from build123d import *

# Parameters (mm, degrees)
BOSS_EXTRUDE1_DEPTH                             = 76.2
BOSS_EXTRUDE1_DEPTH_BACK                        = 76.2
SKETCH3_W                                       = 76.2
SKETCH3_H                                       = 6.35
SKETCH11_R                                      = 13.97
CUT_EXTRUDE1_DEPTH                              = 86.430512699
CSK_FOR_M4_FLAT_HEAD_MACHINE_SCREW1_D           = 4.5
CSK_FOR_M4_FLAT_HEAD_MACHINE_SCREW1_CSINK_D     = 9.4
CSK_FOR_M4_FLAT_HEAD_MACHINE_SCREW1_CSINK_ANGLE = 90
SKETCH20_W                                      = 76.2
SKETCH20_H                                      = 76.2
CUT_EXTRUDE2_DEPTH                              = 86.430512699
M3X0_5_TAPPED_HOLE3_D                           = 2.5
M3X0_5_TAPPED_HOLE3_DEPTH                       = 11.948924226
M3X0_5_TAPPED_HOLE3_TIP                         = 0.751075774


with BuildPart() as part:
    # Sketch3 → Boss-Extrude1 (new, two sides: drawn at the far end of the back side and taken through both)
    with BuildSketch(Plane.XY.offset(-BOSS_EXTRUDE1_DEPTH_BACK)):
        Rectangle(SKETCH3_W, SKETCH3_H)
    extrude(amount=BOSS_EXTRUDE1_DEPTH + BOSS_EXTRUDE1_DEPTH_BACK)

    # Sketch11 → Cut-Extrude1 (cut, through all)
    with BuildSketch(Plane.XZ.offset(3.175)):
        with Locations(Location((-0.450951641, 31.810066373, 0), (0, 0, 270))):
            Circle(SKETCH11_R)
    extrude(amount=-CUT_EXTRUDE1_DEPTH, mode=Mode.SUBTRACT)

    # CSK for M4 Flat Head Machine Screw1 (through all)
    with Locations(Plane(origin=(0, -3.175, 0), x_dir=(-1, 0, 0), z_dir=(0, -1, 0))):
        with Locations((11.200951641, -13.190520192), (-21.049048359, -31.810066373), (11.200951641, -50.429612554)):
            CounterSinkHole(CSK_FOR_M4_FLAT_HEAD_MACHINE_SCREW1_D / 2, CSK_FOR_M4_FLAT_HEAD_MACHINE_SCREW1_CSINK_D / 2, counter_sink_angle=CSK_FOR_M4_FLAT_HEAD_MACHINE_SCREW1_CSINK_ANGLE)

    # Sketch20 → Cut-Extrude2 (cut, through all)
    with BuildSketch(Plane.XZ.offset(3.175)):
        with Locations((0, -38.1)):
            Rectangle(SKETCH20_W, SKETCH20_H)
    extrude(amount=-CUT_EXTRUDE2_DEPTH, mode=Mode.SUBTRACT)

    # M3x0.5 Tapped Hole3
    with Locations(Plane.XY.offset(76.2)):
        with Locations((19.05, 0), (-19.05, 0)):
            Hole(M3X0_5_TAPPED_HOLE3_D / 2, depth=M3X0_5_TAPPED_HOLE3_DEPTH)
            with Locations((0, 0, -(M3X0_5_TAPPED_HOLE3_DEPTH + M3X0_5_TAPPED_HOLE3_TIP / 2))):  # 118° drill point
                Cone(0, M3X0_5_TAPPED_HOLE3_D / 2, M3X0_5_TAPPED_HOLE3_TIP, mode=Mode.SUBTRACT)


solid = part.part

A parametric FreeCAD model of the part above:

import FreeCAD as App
import Part
import Sketcher
Q = App.Units.Quantity


def add_polygon(sketch, points):
    """Adds a closed chain of lines whose ends are joined by coincident constraints."""
    first, n = sketch.GeometryCount, len(points)
    for a, b in zip(points, points[1:] + points[:1]):
        sketch.addGeometry(Part.LineSegment(App.Vector(*a, 0), App.Vector(*b, 0)), False)
    for i in range(n):
        sketch.addConstraint(Sketcher.Constraint("Coincident", first + i, 2, first + (i + 1) % n, 1))

doc = App.newDocument("Part")
params = doc.addObject("Spreadsheet::Sheet", "Params")
for row, (alias, value) in enumerate([
    ("sketch1_width", "3 in"),
    ("sketch1_height", "0.25 in"),
    ("pad1_length", "3 in"),
    ("pad1_length2", "3 in"),
    ("sketch2_diameter", "1.1 in"),
    ("hole_diameter", "4.5 mm"),
    ("hole_csink_diameter", "9.4 mm"),
    ("sketch4_width", "3 in"),
    ("hole2_diameter", "2.5 mm"),
    ("hole2_depth", "11.948924 mm"),
], start=1):
    params.set(f"A{row}", alias)
    params.set(f"B{row}", "=" + value)
    params.setAlias(f"B{row}", alias)

body = doc.addObject("PartDesign::Body", "Body")

sketch1 = body.newObject("Sketcher::SketchObject", "Sketch")
sketch1.AttachmentSupport = (doc.getObject("XY_Plane"), [""])
sketch1.MapMode = "FlatFace"
add_polygon(sketch1, [(-38, 3), (-38, -3), (38, -3), (38, 3)])
sketch1.addConstraint([
    Sketcher.Constraint("Vertical", 0),
    Sketcher.Constraint("Horizontal", 1),
    Sketcher.Constraint("Vertical", 2),
    Sketcher.Constraint("Horizontal", 3),
    Sketcher.Constraint("Symmetric", 0, 2, 2, 2, -1, 1),
    Sketcher.Constraint("DistanceX", 1, 1, 1, 2, Q("3 in")),
    Sketcher.Constraint("DistanceY", 0, 2, 0, 1, Q("0.25 in")),
])
sketch1.setExpression("Constraints[9]", "Params.sketch1_width")
sketch1.setExpression("Constraints[10]", "Params.sketch1_height")
pad1 = body.newObject("PartDesign::Pad", "Pad")
pad1.Profile = sketch1
pad1.Type = "TwoLengths"
pad1.setExpression("Length", "Params.pad1_length")
pad1.setExpression("Length2", "Params.pad1_length2")

sketch2 = body.newObject("Sketcher::SketchObject", "Sketch001")
sketch2.AttachmentSupport = (doc.getObject("XZ_Plane"), [""])
sketch2.MapMode = "FlatFace"
sketch2.AttachmentOffset = App.Placement(App.Vector(0, 0, 0.125 * 25.4), App.Rotation())
sketch2.addGeometry(Part.Circle(App.Vector(0, 32, 0), App.Vector(0, 0, 1), 14), False)
sketch2.addConstraint([
    Sketcher.Constraint("Diameter", 0, Q("1.1 in")),
    Sketcher.Constraint("DistanceX", 0, 3, -1, 1, 0.450952),
    Sketcher.Constraint("DistanceY", -1, 1, 0, 3, 31.810066),
])
sketch2.setExpression("Constraints[0]", "Params.sketch2_diameter")
pocket1 = body.newObject("PartDesign::Pocket", "Pocket")
pocket1.Profile = sketch2
pocket1.Type = "ThroughAll"

sketch3 = body.newObject("Sketcher::SketchObject", "Sketch002")
sketch3.AttachmentSupport = (doc.getObject("XZ_Plane"), [""])
sketch3.MapMode = "FlatFace"
sketch3.AttachmentOffset = App.Placement(App.Vector(0, 0, 0.125 * 25.4), App.Rotation())
sketch3.addGeometry([
    Part.Circle(App.Vector(-11.2, 13.2, 0), App.Vector(0, 0, 1), 2.2),
    Part.Circle(App.Vector(21, 31.8, 0), App.Vector(0, 0, 1), 2.2),
    Part.Circle(App.Vector(-11.2, 50.4, 0), App.Vector(0, 0, 1), 2.2),
], False)
sketch3.addConstraint([
    Sketcher.Constraint("Equal", 0, 1),
    Sketcher.Constraint("Equal", 1, 2),
    Sketcher.Constraint("Vertical", 0, 3, 2, 3),
    Sketcher.Constraint("Diameter", 0, 4.5),
    Sketcher.Constraint("DistanceX", 0, 3, 1, 3, 32.25),
    Sketcher.Constraint("DistanceX", 0, 3, -1, 1, 11.200952),
    Sketcher.Constraint("DistanceY", -1, 1, 0, 3, 13.19052),
    Sketcher.Constraint("DistanceY", -1, 1, 1, 3, 31.810066),
    Sketcher.Constraint("DistanceY", -1, 1, 2, 3, 50.429613),
])
doc.recompute()
hole = body.newObject("PartDesign::Hole", "Hole")
hole.Profile = sketch3
hole.ThreadType = "None"
hole.setExpression("Diameter", "Params.hole_diameter")
hole.DepthType = "ThroughAll"
hole.HoleCutType = "Countersink"
hole.setExpression("HoleCutDiameter", "Params.hole_csink_diameter")
hole.HoleCutCountersinkAngle = 90

sketch4 = body.newObject("Sketcher::SketchObject", "Sketch003")
sketch4.AttachmentSupport = (doc.getObject("XZ_Plane"), [""])
sketch4.MapMode = "FlatFace"
sketch4.AttachmentOffset = App.Placement(App.Vector(0, 0, 0.125 * 25.4), App.Rotation())
add_polygon(sketch4, [(-38, 0), (-38, -76), (38, -76), (38, 0)])
sketch4.addConstraint([
    Sketcher.Constraint("Vertical", 0),
    Sketcher.Constraint("Horizontal", 1),
    Sketcher.Constraint("Vertical", 2),
    Sketcher.Constraint("Horizontal", 3),
    Sketcher.Constraint("Symmetric", 2, 2, 3, 2, -1, 1),
    Sketcher.Constraint("Equal", 3, 0),
    Sketcher.Constraint("DistanceX", 1, 1, 1, 2, Q("3 in")),
])
sketch4.setExpression("Constraints[10]", "Params.sketch4_width")
pocket2 = body.newObject("PartDesign::Pocket", "Pocket001")
pocket2.Profile = sketch4
pocket2.Type = "ThroughAll"

sketch5 = body.newObject("Sketcher::SketchObject", "Sketch004")
sketch5.AttachmentSupport = (doc.getObject("XY_Plane"), [""])
sketch5.MapMode = "FlatFace"
sketch5.AttachmentOffset = App.Placement(App.Vector(0, 0, 3 * 25.4), App.Rotation())
sketch5.addGeometry([
    Part.Circle(App.Vector(19.1, 0, 0), App.Vector(0, 0, 1), 1.2),
    Part.Circle(App.Vector(-19.1, 0, 0), App.Vector(0, 0, 1), 1.2),
], False)
sketch5.addConstraint([
    Sketcher.Constraint("Equal", 0, 1),
    Sketcher.Constraint("Symmetric", 0, 3, 1, 3, -1, 1),
    Sketcher.Constraint("PointOnObject", 0, 3, -1),
    Sketcher.Constraint("DistanceX", 1, 3, 0, 3, Q("1.5 in")),
    Sketcher.Constraint("Diameter", 0, 2.5),
])
doc.recompute()
hole2 = body.newObject("PartDesign::Hole", "Hole001")
hole2.Profile = sketch5
hole2.ThreadType = "None"
hole2.setExpression("Diameter", "Params.hole2_diameter")
hole2.DepthType = "Dimension"
hole2.setExpression("Depth", "Params.hole2_depth")
hole2.DrillPoint = "Angled"
hole2.DrillPointAngle = 118

doc.recompute()
